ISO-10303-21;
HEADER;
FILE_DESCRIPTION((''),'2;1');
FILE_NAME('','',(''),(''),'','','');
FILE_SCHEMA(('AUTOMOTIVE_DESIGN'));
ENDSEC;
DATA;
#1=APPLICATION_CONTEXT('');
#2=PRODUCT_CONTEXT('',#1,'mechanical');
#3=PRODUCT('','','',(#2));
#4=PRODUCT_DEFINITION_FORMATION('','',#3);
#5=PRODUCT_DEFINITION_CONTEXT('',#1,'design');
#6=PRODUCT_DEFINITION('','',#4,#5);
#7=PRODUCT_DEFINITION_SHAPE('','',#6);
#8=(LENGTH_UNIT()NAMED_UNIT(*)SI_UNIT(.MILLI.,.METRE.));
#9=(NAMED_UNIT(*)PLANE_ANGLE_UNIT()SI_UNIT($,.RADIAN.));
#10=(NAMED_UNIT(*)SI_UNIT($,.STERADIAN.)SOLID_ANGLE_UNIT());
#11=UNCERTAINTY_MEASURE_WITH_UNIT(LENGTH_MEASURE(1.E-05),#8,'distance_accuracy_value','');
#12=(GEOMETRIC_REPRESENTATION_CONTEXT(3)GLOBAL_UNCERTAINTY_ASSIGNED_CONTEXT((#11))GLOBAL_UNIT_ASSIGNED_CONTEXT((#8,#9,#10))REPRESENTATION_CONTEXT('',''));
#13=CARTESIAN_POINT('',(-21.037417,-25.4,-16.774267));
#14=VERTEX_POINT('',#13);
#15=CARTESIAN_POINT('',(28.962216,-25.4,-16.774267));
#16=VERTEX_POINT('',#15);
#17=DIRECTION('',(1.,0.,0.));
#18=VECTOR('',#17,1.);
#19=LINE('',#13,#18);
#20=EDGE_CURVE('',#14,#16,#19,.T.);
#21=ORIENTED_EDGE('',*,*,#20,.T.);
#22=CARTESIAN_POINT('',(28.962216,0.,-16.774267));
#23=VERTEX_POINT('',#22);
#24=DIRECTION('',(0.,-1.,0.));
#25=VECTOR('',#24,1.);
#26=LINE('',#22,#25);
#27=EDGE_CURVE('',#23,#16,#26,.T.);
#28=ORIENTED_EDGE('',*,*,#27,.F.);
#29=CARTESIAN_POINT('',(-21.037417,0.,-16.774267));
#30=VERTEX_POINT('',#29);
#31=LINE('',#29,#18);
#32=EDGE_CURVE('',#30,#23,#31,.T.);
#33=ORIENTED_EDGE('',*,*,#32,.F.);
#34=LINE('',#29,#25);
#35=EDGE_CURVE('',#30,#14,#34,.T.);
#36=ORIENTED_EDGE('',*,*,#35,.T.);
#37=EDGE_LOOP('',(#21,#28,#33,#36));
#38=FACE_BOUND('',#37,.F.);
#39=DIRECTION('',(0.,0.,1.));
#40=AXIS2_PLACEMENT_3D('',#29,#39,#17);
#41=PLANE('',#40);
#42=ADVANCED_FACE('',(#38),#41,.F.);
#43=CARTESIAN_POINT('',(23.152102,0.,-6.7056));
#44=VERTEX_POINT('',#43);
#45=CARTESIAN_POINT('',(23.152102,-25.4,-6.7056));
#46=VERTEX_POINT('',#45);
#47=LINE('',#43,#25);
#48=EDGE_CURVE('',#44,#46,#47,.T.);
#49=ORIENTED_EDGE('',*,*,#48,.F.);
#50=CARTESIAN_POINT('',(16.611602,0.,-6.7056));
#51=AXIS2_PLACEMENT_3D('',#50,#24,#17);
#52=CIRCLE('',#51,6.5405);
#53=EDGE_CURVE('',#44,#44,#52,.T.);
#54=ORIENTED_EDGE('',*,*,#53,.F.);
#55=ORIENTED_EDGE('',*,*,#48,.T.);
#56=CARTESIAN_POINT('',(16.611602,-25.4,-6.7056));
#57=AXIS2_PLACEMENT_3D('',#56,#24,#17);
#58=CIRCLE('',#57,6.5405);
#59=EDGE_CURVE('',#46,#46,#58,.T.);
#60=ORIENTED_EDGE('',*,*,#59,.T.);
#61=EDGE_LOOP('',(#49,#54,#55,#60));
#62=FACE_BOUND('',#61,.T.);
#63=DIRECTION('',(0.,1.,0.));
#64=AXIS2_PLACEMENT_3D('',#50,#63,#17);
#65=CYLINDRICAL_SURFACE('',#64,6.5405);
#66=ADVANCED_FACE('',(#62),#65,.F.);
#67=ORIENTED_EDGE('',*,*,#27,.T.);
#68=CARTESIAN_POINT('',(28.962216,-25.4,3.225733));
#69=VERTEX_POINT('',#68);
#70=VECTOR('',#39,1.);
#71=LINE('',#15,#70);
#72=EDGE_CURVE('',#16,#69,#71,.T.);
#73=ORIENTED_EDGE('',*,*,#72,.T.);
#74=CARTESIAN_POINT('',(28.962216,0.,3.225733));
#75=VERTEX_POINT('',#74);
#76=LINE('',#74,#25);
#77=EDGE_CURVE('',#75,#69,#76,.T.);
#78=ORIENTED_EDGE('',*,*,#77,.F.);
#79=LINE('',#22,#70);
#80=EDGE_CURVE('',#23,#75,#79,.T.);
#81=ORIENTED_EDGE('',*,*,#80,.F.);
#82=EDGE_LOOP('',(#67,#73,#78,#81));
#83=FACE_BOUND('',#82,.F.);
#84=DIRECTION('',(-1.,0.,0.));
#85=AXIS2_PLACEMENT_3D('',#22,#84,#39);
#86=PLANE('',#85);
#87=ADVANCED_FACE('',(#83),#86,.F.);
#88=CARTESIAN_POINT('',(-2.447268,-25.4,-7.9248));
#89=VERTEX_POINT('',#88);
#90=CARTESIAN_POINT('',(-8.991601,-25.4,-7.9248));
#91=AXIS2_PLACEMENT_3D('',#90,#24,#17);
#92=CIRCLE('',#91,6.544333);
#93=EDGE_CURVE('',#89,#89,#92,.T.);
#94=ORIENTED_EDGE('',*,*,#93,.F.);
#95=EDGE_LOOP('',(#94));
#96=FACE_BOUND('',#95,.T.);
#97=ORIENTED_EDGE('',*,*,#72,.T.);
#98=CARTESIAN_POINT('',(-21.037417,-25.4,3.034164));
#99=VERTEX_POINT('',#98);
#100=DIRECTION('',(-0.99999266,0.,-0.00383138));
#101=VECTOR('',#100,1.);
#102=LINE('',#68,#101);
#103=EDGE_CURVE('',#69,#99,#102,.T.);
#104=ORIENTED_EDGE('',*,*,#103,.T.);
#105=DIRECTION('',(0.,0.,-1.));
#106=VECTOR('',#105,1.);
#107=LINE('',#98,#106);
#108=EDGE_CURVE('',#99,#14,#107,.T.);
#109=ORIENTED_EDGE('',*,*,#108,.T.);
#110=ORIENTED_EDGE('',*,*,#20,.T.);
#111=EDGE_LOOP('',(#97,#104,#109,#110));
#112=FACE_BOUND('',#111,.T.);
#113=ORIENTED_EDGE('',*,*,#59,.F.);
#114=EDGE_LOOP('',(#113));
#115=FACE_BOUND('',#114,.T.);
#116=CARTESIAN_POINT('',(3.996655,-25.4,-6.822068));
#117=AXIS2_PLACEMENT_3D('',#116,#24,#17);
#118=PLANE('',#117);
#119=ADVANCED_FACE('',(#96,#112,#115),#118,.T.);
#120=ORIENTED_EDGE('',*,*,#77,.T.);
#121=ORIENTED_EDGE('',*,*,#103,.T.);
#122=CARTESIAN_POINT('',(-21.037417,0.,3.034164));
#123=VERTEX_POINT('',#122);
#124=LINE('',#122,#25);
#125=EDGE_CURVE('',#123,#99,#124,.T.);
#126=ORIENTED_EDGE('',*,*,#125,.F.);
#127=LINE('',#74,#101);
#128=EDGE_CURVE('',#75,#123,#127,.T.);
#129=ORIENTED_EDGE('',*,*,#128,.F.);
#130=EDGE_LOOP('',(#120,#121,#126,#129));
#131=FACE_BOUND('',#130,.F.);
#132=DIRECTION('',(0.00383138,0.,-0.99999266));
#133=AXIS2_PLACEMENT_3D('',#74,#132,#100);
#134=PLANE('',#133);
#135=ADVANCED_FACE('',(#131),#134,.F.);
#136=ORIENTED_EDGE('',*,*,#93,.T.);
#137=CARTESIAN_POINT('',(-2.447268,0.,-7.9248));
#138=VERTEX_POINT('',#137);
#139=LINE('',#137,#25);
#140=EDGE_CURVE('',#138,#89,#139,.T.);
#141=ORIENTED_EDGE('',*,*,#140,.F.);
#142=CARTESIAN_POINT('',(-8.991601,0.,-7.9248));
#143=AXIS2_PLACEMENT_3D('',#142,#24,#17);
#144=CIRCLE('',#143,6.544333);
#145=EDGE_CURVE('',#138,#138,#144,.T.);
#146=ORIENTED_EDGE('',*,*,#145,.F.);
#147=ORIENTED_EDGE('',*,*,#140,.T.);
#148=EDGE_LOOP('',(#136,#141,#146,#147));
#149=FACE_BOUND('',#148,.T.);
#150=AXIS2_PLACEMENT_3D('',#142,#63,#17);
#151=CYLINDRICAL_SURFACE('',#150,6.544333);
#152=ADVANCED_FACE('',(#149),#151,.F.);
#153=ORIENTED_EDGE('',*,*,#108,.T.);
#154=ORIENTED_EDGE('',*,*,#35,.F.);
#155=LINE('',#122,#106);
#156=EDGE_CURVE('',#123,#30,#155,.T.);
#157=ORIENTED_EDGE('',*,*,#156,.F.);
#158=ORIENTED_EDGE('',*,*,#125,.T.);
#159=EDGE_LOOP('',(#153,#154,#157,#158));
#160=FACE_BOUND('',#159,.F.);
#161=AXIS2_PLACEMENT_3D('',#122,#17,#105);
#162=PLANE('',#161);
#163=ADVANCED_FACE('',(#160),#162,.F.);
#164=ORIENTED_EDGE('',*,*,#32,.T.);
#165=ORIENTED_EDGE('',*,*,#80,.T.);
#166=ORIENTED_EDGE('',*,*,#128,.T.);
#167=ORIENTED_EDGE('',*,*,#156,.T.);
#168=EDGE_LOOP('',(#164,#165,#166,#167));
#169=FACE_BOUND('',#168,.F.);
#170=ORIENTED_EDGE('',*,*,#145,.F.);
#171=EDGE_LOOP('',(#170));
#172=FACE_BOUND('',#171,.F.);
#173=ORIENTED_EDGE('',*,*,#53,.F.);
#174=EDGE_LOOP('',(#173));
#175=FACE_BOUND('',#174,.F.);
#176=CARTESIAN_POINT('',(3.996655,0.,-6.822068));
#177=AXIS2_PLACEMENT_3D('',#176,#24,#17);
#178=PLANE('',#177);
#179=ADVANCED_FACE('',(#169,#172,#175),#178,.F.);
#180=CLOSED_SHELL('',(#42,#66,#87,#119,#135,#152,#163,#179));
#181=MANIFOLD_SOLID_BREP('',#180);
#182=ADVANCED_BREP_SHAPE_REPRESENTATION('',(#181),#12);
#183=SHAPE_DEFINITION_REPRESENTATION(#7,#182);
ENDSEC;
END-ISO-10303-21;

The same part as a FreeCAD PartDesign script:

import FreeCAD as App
import Part
import Sketcher

V = App.Vector


def add_polygon(sketch, points):
    """Adds a closed chain of lines whose ends are joined by coincident constraints."""
    first, n = sketch.GeometryCount, len(points)
    for a, b in zip(points, points[1:] + points[:1]):
        sketch.addGeometry(Part.LineSegment(App.Vector(*a, 0), App.Vector(*b, 0)), False)
    for i in range(n):
        sketch.addConstraint(Sketcher.Constraint("Coincident", first + i, 2, first + (i + 1) % n, 1))

doc = App.newDocument("Part")
params = doc.addObject("Spreadsheet::Sheet", "Params")
for row, (alias, value) in enumerate([
    ("sketch1_height", "20 mm"),
    ("sketch1_length", "50 mm"),
    ("pad1_length", "25.4 mm"),
    ("sketch2_height", "20 mm"),
    ("sketch2_length", "50 mm"),
    ("pad2_length", "25.4 mm"),
], start=1):
    params.set(f"A{row}", alias)
    params.set(f"B{row}", "=" + value)
    params.setAlias(f"B{row}", alias)

body = doc.addObject("PartDesign::Body", "Body")

# Sketch on XZ plane
sketch1 = doc.addObject("Sketcher::SketchObject", "Sketch")
body.addObject(sketch1)
sketch1.AttachmentSupport = (doc.XZ_Plane, [""])
sketch1.MapMode = "FlatFace"
add_polygon(sketch1, [(29, 3), (-21, 3), (-21, -17), (29, -17)])  # lines 0-3
sketch1.addGeometry(Part.Circle(V(-9, -8, 0), V(0, 0, 1), 7), False)  # 4
sketch1.addGeometry(Part.Circle(V(17, -7, 0), V(0, 0, 1), 7), False)  # 5
sketch1.addConstraint([
    Sketcher.Constraint("Vertical", 1),
    Sketcher.Constraint("Horizontal", 2),
    Sketcher.Constraint("Vertical", 3),
    Sketcher.Constraint("DistanceY", 3, 1, 3, 2, 20.0),
    Sketcher.Constraint("Distance", 0, 50.0),
    Sketcher.Constraint("Diameter", 5, 13.081),
    Sketcher.Constraint("Diameter", 4, 13.088666),
    Sketcher.Constraint("DistanceY", 1, 2, 1, 1, 19.808431),
    Sketcher.Constraint("DistanceX", 4, 3, -1, 1, 8.991601),
    Sketcher.Constraint("DistanceY", 4, 3, -1, 1, 7.9248),
    Sketcher.Constraint("DistanceY", 5, 3, -1, 1, 6.7056),
    Sketcher.Constraint("DistanceX", 0, 2, 5, 3, 37.649019),
    Sketcher.Constraint("DistanceX", -1, 1, 5, 3, 16.611602),
    Sketcher.Constraint("DistanceY", -1, 1, 0, 2, 3.034164),
])
sketch1.setExpression("Constraints[7]", "Params.sketch1_height")
sketch1.setExpression("Constraints[8]", "Params.sketch1_length")
pad1 = doc.addObject("PartDesign::Pad", "Pad")
body.addObject(pad1)
pad1.Profile = sketch1
pad1.setExpression("Length", "Params.pad1_length")

# Sketch on XZ plane
sketch2 = doc.addObject("Sketcher::SketchObject", "Sketch001")
body.addObject(sketch2)
sketch2.AttachmentSupport = (doc.XZ_Plane, [""])
sketch2.MapMode = "FlatFace"
add_polygon(sketch2, [(29, 3), (-21, 3), (-21, -17), (29, -17)])  # lines 0-3
sketch2.addGeometry(Part.Circle(V(-9, -8, 0), V(0, 0, 1), 7), False)  # 4
sketch2.addGeometry(Part.Circle(V(17, -7, 0), V(0, 0, 1), 7), False)  # 5
sketch2.addConstraint([
    Sketcher.Constraint("Vertical", 1),
    Sketcher.Constraint("Horizontal", 2),
    Sketcher.Constraint("Vertical", 3),
    Sketcher.Constraint("DistanceY", 3, 1, 3, 2, 20.0),
    Sketcher.Constraint("Distance", 0, 50.0),
    Sketcher.Constraint("Diameter", 5, 13.081),
    Sketcher.Constraint("Diameter", 4, 13.088666),
    Sketcher.Constraint("DistanceY", 1, 2, 1, 1, 19.808431),
    Sketcher.Constraint("DistanceX", 4, 3, -1, 1, 8.991601),
    Sketcher.Constraint("DistanceY", 4, 3, -1, 1, 7.9248),
    Sketcher.Constraint("DistanceY", 5, 3, -1, 1, 6.7056),
    Sketcher.Constraint("DistanceX", 0, 2, 5, 3, 37.649019),
    Sketcher.Constraint("DistanceX", -1, 1, 5, 3, 16.611602),
    Sketcher.Constraint("DistanceY", -1, 1, 0, 2, 3.034164),
])
sketch2.setExpression("Constraints[7]", "Params.sketch2_height")
sketch2.setExpression("Constraints[8]", "Params.sketch2_length")
pad2 = doc.addObject("PartDesign::Pad", "Pad001")
body.addObject(pad2)
pad2.Profile = sketch2
pad2.setExpression("Length", "Params.pad2_length")

doc.recompute()
